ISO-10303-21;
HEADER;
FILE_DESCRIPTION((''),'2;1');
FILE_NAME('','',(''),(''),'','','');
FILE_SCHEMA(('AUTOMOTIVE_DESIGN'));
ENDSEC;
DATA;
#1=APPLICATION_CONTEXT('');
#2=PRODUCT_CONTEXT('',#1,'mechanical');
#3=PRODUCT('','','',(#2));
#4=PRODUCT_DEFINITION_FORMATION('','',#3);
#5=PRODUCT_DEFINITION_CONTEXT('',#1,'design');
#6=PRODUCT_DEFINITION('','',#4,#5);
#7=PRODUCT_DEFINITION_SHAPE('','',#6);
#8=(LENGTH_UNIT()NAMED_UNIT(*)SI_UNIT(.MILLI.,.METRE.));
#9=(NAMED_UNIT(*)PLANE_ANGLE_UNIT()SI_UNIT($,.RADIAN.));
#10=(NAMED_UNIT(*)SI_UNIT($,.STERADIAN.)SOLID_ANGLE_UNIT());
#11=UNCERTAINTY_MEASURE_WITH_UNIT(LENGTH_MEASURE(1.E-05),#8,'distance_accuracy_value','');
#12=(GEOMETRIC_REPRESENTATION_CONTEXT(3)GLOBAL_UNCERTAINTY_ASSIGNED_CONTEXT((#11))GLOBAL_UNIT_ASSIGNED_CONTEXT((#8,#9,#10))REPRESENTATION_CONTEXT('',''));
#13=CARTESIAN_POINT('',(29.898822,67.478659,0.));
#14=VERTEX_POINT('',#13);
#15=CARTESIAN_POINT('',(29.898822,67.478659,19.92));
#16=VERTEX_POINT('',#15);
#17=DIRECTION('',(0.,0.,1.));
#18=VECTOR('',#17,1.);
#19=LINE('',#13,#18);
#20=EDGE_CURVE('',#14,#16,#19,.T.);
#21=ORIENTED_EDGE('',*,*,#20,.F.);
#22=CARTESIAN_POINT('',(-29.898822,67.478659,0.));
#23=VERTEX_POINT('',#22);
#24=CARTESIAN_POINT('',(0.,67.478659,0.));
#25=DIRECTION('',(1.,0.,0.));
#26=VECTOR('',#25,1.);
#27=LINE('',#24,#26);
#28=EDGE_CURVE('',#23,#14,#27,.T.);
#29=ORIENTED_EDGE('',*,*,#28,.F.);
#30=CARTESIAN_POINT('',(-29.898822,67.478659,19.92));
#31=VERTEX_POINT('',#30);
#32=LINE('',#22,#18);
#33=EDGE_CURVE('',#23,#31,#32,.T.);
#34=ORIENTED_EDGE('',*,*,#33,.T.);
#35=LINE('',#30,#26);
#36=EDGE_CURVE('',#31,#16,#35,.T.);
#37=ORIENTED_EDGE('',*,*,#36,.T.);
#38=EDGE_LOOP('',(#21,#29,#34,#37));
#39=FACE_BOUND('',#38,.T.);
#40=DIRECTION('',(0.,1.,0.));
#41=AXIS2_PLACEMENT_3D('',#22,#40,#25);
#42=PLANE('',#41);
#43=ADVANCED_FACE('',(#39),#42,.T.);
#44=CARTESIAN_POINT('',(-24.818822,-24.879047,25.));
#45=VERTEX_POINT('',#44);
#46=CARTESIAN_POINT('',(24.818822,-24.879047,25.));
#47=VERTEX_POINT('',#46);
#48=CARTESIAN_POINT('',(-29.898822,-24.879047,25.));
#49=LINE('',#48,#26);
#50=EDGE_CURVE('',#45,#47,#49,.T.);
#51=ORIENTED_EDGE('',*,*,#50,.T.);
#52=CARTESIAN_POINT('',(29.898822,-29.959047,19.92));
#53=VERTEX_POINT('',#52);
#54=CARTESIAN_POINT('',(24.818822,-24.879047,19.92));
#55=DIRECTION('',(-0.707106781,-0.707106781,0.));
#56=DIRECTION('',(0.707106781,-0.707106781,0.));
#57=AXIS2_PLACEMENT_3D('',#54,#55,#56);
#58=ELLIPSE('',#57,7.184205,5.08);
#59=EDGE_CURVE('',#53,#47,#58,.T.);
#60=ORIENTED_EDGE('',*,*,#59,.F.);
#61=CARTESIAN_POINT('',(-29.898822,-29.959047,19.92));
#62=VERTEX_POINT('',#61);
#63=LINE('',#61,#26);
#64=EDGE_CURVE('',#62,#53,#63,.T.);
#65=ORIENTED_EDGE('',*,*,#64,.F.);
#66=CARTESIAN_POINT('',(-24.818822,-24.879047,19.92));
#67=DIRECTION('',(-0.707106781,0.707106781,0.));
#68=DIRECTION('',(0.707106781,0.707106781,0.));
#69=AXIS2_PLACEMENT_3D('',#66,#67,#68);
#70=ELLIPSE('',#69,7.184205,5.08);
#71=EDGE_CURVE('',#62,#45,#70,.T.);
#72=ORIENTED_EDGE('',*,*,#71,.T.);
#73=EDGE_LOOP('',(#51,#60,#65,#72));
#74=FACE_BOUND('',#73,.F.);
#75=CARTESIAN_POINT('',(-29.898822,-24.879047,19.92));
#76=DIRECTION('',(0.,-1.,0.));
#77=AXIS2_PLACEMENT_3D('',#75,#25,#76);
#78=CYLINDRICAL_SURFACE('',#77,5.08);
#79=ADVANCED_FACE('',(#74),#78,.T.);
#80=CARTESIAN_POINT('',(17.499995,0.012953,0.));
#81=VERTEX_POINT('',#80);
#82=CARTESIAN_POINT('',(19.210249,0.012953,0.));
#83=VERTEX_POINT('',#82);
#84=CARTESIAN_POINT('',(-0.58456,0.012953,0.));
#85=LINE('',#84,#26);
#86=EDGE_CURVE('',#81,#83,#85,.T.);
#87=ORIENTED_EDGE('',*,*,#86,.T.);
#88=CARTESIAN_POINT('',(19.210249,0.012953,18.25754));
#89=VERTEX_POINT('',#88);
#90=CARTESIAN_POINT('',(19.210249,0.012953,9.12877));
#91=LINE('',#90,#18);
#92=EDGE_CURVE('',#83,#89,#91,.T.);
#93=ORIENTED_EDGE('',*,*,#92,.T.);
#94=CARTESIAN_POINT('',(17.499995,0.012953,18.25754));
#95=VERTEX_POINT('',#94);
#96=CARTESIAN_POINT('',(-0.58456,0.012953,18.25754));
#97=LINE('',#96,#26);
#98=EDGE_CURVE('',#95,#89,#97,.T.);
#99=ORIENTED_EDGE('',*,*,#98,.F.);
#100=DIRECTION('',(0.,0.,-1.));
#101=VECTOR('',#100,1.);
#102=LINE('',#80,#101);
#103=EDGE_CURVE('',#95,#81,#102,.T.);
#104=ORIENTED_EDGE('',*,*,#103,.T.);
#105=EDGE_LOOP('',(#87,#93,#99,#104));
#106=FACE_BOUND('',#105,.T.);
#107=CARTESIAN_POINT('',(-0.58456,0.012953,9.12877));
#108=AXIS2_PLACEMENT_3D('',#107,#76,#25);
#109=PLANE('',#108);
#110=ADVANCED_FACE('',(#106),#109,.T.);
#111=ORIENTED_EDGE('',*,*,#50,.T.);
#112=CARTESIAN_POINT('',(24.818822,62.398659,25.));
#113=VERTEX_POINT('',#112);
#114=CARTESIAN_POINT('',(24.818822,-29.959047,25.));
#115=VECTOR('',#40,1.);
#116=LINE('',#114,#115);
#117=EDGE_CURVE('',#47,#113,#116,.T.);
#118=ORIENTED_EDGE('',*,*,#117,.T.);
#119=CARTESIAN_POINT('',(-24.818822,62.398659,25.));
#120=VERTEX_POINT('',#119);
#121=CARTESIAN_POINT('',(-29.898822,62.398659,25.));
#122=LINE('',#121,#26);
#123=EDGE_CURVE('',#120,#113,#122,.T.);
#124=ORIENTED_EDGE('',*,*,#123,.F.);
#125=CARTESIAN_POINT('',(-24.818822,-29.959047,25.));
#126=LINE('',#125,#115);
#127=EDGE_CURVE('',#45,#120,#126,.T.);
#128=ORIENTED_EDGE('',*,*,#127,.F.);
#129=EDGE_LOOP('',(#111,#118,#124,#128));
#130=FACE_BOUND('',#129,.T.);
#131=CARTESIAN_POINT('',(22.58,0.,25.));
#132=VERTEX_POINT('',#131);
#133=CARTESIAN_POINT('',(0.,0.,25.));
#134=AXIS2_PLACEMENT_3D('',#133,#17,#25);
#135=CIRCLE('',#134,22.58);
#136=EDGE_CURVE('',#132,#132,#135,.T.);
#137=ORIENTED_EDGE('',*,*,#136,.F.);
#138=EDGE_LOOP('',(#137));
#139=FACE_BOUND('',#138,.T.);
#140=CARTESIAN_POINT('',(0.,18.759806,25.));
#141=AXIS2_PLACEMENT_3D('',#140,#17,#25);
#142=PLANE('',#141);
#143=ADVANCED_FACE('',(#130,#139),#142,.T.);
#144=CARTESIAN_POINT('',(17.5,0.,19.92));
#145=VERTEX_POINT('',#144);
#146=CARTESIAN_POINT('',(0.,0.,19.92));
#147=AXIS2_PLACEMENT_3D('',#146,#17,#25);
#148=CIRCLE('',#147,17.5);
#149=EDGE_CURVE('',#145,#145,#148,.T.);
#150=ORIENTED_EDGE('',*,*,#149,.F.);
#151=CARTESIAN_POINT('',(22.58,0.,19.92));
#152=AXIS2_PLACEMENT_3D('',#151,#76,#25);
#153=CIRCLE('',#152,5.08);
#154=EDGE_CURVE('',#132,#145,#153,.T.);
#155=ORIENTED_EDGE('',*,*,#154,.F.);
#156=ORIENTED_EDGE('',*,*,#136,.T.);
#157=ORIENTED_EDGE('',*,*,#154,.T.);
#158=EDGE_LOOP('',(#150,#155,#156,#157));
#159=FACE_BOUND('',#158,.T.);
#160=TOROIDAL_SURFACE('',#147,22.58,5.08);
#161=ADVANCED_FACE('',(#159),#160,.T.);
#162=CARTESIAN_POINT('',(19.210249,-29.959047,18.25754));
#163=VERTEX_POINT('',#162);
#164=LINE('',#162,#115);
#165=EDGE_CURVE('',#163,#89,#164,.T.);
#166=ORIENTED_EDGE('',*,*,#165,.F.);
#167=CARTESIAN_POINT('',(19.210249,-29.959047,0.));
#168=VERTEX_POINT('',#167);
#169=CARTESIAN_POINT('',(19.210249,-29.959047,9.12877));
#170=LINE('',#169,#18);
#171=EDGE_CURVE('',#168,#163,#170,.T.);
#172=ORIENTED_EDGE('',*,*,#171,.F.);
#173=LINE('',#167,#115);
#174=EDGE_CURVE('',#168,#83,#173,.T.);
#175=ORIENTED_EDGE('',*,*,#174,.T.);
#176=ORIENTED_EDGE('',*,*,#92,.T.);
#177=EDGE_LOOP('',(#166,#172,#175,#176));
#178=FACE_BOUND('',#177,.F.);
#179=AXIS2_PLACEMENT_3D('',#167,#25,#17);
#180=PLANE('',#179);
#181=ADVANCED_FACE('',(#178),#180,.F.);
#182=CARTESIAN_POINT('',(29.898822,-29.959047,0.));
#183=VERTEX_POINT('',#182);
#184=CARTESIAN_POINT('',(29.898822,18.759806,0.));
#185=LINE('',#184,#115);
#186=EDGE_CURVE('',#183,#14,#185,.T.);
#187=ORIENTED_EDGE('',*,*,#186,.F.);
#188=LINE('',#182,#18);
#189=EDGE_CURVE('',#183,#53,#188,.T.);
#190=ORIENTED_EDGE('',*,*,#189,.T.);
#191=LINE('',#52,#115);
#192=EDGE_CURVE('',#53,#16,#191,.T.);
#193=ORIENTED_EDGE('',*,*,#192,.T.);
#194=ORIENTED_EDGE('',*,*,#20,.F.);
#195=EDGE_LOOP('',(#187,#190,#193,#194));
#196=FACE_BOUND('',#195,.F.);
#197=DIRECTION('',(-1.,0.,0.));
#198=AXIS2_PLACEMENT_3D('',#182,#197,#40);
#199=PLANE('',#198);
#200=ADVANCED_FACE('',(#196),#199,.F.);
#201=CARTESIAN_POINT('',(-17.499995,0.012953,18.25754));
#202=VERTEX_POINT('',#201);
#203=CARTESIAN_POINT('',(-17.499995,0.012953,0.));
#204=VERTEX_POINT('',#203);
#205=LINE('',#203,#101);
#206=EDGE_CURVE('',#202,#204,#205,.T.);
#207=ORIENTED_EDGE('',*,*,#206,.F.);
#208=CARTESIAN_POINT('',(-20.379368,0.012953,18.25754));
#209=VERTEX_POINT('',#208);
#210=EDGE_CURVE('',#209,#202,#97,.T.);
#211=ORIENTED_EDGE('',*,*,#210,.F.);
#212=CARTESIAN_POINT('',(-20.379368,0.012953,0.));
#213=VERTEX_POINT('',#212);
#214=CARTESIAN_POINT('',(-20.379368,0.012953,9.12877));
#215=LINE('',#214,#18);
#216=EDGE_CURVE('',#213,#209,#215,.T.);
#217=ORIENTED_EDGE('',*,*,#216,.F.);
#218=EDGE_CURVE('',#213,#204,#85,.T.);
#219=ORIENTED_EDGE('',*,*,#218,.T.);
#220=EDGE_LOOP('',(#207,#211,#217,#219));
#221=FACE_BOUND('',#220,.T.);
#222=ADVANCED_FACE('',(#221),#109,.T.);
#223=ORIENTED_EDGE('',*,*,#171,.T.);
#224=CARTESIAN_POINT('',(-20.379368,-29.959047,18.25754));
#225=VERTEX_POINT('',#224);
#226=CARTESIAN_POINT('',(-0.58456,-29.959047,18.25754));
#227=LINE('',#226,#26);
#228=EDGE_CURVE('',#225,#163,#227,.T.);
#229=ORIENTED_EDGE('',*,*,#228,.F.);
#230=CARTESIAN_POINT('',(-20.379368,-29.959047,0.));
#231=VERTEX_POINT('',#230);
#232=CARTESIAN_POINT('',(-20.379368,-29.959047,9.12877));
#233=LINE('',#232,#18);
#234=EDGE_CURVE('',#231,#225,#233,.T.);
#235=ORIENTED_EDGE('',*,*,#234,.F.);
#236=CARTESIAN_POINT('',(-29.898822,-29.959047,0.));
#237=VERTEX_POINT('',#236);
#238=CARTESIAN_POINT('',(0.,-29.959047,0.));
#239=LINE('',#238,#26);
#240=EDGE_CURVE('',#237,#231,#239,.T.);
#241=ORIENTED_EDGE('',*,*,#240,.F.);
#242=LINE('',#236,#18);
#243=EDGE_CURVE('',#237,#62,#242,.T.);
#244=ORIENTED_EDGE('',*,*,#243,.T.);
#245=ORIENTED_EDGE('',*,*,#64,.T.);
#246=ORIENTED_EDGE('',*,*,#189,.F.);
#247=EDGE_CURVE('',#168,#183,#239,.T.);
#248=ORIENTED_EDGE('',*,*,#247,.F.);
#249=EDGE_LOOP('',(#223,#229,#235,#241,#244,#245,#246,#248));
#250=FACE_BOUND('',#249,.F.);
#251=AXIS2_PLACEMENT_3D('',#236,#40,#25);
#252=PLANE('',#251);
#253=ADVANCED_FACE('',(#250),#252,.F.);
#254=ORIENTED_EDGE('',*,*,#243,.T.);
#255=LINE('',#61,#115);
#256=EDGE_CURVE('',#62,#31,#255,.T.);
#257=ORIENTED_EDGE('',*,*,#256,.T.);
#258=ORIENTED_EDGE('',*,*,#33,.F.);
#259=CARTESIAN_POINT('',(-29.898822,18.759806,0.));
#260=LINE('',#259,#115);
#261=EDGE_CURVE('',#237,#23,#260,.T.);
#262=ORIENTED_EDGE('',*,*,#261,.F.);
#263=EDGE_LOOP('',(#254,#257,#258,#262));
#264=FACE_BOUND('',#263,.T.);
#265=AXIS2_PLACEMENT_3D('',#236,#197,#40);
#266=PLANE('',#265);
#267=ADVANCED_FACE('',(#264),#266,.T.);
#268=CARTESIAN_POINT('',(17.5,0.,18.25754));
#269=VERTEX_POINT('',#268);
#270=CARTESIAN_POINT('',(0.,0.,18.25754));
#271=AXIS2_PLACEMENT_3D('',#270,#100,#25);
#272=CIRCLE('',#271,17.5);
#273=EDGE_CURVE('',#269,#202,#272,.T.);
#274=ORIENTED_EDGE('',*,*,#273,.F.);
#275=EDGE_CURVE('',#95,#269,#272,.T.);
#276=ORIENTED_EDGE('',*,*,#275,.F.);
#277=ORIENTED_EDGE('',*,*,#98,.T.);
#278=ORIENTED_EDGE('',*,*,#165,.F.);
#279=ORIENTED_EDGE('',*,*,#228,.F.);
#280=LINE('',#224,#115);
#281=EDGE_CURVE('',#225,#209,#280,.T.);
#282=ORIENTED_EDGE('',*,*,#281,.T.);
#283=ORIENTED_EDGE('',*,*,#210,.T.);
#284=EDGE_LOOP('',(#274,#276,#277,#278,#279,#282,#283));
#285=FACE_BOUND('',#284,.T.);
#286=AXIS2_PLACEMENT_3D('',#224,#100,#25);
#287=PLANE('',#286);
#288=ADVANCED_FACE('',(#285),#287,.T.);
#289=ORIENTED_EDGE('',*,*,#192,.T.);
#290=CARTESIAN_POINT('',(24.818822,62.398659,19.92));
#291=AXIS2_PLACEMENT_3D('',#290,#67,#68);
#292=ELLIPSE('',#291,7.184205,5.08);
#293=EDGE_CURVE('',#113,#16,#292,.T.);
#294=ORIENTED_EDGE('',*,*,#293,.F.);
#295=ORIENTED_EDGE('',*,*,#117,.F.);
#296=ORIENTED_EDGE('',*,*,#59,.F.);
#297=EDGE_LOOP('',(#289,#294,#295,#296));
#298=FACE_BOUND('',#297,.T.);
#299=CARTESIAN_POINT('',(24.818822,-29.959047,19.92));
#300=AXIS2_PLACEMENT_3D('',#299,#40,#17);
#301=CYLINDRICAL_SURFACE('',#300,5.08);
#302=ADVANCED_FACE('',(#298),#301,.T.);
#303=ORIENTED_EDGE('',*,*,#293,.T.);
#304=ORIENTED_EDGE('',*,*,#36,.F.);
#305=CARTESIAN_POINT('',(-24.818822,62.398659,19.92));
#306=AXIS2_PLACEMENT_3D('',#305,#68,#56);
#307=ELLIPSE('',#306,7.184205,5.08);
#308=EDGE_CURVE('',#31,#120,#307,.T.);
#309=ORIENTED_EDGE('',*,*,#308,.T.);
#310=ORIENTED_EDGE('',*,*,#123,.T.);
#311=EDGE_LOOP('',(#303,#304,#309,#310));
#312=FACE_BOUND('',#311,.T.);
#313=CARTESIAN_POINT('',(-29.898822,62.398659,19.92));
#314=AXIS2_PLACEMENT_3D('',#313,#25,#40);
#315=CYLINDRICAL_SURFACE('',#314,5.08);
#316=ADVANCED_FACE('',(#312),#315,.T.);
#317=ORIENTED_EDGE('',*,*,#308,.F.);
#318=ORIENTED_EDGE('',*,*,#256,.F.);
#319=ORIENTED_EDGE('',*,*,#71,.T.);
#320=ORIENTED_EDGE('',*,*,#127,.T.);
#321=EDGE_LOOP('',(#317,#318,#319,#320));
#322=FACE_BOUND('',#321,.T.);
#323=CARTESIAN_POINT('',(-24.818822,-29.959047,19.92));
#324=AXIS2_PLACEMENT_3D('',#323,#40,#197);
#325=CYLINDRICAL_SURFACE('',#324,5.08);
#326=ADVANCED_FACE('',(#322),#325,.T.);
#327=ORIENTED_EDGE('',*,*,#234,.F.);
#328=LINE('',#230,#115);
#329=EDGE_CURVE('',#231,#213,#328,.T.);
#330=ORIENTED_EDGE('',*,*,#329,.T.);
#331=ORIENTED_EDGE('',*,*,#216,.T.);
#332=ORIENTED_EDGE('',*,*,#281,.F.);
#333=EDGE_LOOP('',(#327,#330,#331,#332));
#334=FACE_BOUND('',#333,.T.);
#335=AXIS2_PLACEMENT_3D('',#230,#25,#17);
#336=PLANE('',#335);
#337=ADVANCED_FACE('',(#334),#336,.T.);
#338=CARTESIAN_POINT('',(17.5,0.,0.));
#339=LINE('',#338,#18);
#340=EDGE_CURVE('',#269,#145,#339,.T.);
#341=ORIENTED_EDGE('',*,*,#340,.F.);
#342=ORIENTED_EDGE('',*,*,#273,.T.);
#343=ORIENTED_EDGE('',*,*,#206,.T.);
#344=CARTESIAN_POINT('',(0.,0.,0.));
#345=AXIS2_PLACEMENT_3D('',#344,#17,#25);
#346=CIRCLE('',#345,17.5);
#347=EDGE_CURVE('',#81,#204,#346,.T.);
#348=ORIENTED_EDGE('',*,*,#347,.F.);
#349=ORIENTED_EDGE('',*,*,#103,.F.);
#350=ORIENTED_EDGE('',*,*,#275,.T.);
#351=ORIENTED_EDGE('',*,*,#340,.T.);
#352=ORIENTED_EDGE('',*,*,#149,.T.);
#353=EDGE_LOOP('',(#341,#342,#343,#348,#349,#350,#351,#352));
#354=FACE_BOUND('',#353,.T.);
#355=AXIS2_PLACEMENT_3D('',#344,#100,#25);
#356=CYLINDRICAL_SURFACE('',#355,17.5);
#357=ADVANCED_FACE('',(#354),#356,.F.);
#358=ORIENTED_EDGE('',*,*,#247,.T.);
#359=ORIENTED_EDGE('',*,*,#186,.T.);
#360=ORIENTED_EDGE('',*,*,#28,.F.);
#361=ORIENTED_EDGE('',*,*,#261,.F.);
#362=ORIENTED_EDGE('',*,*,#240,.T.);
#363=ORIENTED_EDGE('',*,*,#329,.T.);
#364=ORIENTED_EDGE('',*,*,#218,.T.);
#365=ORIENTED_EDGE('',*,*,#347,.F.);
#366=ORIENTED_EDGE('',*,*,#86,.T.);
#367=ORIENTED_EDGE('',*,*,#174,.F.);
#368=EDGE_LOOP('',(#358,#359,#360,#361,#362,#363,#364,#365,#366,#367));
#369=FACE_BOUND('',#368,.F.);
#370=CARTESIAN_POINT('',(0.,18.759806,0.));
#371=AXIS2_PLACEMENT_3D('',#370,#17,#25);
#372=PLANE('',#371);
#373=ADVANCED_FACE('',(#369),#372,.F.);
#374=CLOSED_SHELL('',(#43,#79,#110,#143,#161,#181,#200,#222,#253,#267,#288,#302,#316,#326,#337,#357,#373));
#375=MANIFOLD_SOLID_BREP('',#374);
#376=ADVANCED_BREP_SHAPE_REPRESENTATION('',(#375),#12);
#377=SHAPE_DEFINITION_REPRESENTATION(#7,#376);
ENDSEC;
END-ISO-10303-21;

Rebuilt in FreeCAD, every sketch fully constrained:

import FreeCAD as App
import Part
import Sketcher
from FreeCAD import Vector
Q = App.Units.Quantity


def edges_at(feature, points):
    """Names of the edges that pass closest to the given points."""
    edges = feature.Shape.Edges
    near = lambda p: min(range(len(edges)), key=lambda i: edges[i].distToShape(Part.Vertex(*p))[0])
    return sorted({f"Edge{near(p) + 1}" for p in points})


def add_polygon(sketch, points):
    """Adds a closed chain of lines whose ends are joined by coincident constraints."""
    first, n = sketch.GeometryCount, len(points)
    for a, b in zip(points, points[1:] + points[:1]):
        sketch.addGeometry(Part.LineSegment(App.Vector(*a, 0), App.Vector(*b, 0)), False)
    for i in range(n):
        sketch.addConstraint(Sketcher.Constraint("Coincident", first + i, 2, first + (i + 1) % n, 1))

doc = App.newDocument("Part")
body = doc.addObject("PartDesign::Body", "Body")

# Sketch on XY plane
sketch1 = doc.addObject("Sketcher::SketchObject", "Sketch")
body.addObject(sketch1)
sketch1.AttachmentSupport = (doc.XY_Plane, [""])
sketch1.MapMode = "FlatFace"
add_polygon(sketch1, [(-30, 67), (-30, -30), (30, -30), (30, 67)])  # lines 0-3
sketch1.addGeometry(Part.Circle(Vector(0, 0, 0), Vector(0, 0, 1), 18), False)  # 4
sketch1.addConstraint(Sketcher.Constraint("Vertical", 0))
sketch1.addConstraint(Sketcher.Constraint("Horizontal", 1))
sketch1.addConstraint(Sketcher.Constraint("Vertical", 2))
sketch1.addConstraint(Sketcher.Constraint("Horizontal", 3))
sketch1.addConstraint(Sketcher.Constraint("Coincident", 4, 3, -1, 1))
sketch1.addConstraint(Sketcher.Constraint("Diameter", 4, Q("35 mm")))
sketch1.addConstraint(Sketcher.Constraint("DistanceX", 1, 1, 1, 2, Q("59.797645 mm")))
sketch1.addConstraint(Sketcher.Constraint("DistanceY", 0, 2, 0, 1, Q("97.437706 mm")))
sketch1.addConstraint(Sketcher.Constraint("DistanceY", -1, 1, 2, 2, Q("67.478659 mm")))
sketch1.addConstraint(Sketcher.Constraint("DistanceX", 0, 2, -1, 1, Q("29.898822 mm")))
pad1 = doc.addObject("PartDesign::Pad", "Pad")
body.addObject(pad1)
pad1.Profile = sketch1
pad1.Length = 25

# Sketch on XZ plane
sketch2 = doc.addObject("Sketcher::SketchObject", "Sketch001")
body.addObject(sketch2)
sketch2.AttachmentSupport = (doc.XZ_Plane, [""])
sketch2.MapMode = "FlatFace"
sketch2.AttachmentOffset = App.Placement(Vector(0, 0, 29.959047), App.Rotation())
add_polygon(sketch2, [(-20, 18), (-20, 0), (19, 0), (19, 18)])  # lines 0-3
sketch2.addConstraint(Sketcher.Constraint("Vertical", 0))
sketch2.addConstraint(Sketcher.Constraint("Horizontal", 1))
sketch2.addConstraint(Sketcher.Constraint("Vertical", 2))
sketch2.addConstraint(Sketcher.Constraint("Horizontal", 3))
sketch2.addConstraint(Sketcher.Constraint("PointOnObject", 0, 2, -1))
sketch2.addConstraint(Sketcher.Constraint("DistanceY", 0, 2, 0, 1, Q("18.25754 mm")))
sketch2.addConstraint(Sketcher.Constraint("DistanceX", 1, 1, 1, 2, Q("39.589617 mm")))
sketch2.addConstraint(Sketcher.Constraint("DistanceX", 0, 2, -1, 1, Q("20.379368 mm")))
pocket1 = doc.addObject("PartDesign::Pocket", "Pocket")
body.addObject(pocket1)
pocket1.Profile = sketch2
pocket1.Length = 29.972
doc.recompute()

fillet = doc.addObject("PartDesign::Fillet", "Fillet")
body.addObject(fillet)
fillet.Base = (pocket1, edges_at(pocket1, [
    (0, -29.959, 25),
    (29.899, 18.76, 25),
    (0, 67.479, 25),
    (-29.899, 18.76, 25),
    (-17.5, 0, 25),
]))
fillet.Radius = 5.08

doc.recompute()
